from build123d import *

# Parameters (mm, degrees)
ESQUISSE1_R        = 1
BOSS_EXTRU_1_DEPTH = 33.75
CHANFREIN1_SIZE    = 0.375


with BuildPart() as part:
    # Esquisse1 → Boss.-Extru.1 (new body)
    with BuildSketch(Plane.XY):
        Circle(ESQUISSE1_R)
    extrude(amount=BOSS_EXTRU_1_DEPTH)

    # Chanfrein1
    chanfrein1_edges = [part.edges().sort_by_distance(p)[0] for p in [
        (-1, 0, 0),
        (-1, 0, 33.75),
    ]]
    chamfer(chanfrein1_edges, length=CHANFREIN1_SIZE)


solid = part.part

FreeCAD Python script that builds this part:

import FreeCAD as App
import Part
import Sketcher

V = App.Vector
Q = App.Units.Quantity


def edges_at(feature, points):
    """Names of the edges that pass closest to the given points."""
    edges = feature.Shape.Edges
    near = lambda p: min(range(len(edges)), key=lambda i: edges[i].distToShape(Part.Vertex(*p))[0])
    return sorted({f"Edge{near(p) + 1}" for p in points})

doc = App.newDocument("Part")
body = doc.addObject("PartDesign::Body", "Body")

# Sketch on XY plane
sketch1 = body.newObject("Sketcher::SketchObject", "Sketch")
sketch1.AttachmentSupport = (doc.getObject("XY_Plane"), [""])
sketch1.MapMode = "FlatFace"
sketch1.addGeometry(Part.Circle(V(0, 0, 0), V(0, 0, 1), 1), False)
sketch1.addConstraint([
    Sketcher.Constraint("Coincident", 0, 3, -1, 1),
    Sketcher.Constraint("Diameter", 0, Q("2 mm")),
])
pad1 = body.newObject("PartDesign::Pad", "Pad")
pad1.Profile = sketch1
pad1.Length = 33.75
doc.recompute()

chamfer = body.newObject("PartDesign::Chamfer", "Chamfer")
chamfer.Base = (pad1, edges_at(pad1, [(-1, 0, 0), (-1, 0, 33.75)]))
chamfer.Size = 0.375

doc.recompute()
